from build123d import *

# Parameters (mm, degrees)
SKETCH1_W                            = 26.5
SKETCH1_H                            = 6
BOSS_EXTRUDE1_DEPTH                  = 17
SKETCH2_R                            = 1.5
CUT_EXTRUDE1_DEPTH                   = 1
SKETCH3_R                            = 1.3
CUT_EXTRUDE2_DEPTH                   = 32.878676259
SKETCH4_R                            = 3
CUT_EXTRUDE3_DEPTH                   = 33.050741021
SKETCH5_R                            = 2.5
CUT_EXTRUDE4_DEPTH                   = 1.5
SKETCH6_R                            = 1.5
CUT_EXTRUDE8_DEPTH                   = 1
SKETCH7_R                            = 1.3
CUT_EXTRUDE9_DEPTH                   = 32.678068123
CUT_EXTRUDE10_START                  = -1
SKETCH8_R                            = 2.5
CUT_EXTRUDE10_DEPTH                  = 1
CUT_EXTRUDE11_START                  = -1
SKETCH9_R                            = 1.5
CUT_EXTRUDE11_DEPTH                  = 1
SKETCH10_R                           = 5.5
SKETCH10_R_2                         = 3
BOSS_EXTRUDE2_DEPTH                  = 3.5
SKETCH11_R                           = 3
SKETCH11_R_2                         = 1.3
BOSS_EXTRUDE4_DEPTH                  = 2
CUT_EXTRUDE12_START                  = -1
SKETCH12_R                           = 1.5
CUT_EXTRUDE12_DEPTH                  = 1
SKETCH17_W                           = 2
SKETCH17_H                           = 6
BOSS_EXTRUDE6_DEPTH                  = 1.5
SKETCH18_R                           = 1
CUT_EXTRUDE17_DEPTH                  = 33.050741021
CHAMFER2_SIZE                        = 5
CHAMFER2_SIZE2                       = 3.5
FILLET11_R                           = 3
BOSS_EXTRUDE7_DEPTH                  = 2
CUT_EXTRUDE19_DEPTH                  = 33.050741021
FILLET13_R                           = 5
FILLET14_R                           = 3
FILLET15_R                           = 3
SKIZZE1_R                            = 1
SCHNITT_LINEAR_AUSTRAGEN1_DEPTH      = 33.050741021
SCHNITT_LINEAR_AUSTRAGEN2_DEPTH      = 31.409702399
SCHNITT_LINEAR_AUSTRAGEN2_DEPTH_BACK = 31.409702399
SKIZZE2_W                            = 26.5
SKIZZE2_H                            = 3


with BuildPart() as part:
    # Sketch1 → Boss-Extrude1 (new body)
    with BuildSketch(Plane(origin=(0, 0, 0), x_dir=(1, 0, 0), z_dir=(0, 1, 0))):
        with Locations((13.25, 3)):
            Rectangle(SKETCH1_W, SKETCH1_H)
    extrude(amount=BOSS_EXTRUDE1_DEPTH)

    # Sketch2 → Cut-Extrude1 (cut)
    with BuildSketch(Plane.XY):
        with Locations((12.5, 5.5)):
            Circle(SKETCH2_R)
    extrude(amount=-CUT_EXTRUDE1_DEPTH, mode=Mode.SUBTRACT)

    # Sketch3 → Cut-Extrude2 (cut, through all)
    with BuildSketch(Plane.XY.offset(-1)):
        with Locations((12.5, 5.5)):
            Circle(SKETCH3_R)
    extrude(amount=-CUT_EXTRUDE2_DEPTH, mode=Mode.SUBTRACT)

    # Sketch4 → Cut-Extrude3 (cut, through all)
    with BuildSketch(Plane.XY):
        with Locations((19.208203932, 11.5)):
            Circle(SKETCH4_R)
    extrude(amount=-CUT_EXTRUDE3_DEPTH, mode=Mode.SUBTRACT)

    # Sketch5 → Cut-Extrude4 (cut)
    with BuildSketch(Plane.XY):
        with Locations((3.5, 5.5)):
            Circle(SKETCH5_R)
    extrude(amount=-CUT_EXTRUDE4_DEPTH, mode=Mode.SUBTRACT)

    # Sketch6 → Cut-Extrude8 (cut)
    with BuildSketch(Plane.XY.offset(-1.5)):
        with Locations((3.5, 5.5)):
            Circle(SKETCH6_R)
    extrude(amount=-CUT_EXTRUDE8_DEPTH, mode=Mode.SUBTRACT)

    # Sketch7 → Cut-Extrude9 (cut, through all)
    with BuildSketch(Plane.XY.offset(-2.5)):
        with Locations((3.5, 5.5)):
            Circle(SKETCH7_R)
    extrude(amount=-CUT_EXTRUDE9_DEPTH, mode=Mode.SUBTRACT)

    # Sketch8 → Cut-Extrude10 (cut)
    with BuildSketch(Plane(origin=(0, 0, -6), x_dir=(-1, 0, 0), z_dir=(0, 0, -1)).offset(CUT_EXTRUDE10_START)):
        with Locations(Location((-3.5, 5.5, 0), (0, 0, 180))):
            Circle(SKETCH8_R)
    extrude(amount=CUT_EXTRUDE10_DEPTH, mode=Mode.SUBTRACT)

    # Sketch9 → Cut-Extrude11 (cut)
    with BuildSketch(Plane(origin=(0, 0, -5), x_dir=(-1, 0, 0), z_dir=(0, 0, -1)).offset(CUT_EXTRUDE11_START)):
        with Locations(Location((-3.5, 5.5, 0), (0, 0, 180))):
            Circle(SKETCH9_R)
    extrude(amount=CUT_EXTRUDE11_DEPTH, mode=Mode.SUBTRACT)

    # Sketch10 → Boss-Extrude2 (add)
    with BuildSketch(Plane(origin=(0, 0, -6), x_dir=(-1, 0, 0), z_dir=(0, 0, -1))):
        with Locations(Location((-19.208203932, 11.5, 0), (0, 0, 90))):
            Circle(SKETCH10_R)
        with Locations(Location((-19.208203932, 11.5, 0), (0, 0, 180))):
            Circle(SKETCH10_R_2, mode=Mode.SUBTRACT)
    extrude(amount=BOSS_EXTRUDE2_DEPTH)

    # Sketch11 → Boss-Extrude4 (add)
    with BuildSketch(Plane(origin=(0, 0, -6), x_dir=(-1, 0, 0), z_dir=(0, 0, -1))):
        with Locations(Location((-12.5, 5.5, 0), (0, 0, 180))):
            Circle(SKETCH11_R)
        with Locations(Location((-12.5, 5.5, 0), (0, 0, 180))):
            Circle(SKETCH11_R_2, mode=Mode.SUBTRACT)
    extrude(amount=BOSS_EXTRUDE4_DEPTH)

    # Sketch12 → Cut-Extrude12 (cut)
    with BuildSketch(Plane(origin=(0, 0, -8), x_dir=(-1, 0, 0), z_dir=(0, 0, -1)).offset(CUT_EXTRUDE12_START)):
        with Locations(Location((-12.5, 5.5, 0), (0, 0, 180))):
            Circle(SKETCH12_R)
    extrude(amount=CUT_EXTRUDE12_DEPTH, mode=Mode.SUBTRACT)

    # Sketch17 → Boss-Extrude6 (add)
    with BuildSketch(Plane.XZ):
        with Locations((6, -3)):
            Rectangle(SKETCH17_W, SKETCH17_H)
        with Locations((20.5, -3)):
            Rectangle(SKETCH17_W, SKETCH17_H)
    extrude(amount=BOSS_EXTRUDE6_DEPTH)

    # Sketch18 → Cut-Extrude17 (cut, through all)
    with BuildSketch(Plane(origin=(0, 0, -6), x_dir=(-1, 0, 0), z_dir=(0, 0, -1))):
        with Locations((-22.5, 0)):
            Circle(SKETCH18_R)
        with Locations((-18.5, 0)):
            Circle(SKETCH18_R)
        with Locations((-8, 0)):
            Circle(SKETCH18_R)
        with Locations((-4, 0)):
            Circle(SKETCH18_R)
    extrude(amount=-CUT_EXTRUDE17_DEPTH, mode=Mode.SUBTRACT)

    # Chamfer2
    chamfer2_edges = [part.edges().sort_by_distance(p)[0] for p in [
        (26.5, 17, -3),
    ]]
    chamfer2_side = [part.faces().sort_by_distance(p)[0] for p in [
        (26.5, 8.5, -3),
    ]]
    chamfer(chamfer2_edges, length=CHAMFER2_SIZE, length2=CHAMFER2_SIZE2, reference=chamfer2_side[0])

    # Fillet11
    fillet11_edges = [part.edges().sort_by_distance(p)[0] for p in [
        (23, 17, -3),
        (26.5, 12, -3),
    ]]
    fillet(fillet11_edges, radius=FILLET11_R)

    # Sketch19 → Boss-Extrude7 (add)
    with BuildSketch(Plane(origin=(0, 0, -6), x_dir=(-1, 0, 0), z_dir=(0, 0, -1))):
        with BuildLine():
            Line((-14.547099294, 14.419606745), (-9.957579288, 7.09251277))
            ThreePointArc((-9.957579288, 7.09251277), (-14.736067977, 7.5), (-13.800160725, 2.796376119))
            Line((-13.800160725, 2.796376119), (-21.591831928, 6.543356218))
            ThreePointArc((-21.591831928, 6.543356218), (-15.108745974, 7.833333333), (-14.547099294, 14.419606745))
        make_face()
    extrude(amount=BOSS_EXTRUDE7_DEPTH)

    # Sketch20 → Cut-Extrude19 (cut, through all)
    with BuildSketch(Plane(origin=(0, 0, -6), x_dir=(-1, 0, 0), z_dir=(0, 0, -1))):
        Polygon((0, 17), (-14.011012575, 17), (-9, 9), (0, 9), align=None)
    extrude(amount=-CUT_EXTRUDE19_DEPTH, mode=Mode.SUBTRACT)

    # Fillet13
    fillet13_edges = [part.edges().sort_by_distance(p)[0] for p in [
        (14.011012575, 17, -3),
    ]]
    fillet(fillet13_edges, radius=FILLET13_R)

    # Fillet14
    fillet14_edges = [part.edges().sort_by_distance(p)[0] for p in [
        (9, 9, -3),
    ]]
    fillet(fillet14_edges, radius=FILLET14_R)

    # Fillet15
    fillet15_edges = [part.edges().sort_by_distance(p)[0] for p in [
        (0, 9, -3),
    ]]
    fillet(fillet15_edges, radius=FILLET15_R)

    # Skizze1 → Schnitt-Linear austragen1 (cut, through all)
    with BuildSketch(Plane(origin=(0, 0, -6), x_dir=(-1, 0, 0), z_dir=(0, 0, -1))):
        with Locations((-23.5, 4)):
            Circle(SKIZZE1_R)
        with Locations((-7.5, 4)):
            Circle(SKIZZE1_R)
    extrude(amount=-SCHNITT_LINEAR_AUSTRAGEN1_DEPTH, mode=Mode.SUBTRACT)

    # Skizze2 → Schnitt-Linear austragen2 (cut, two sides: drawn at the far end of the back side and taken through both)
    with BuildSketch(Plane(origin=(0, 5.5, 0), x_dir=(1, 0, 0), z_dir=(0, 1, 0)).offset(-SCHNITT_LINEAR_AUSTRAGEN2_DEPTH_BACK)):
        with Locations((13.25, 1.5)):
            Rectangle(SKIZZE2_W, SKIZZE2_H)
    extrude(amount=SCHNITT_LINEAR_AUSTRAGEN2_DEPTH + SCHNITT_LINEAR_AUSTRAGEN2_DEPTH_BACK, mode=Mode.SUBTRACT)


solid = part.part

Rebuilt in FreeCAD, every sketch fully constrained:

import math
import FreeCAD as App
import Part
import Sketcher

V = App.Vector
Q = App.Units.Quantity


def edges_at(feature, points):
    """Names of the edges that pass closest to the given points."""
    edges = feature.Shape.Edges
    near = lambda p: min(range(len(edges)), key=lambda i: edges[i].distToShape(Part.Vertex(*p))[0])
    return sorted({f"Edge{near(p) + 1}" for p in points})

doc = App.newDocument("Part")
body = doc.addObject("PartDesign::Body", "Body")

# Sketch on XZ plane
sketch1 = body.newObject("Sketcher::SketchObject", "Sketch")
sketch1.AttachmentSupport = (doc.getObject("XZ_Plane"), [""])
sketch1.MapMode = "FlatFace"
sketch1.addGeometry([
    Part.LineSegment(V(0, -6, 0), V(0, 0, 0)),
    Part.LineSegment(V(0, 0, 0), V(26, 0, 0)),
    Part.LineSegment(V(26, 0, 0), V(26, -6, 0)),
    Part.LineSegment(V(26, -6, 0), V(0, -6, 0)),
], False)
sketch1.addConstraint([
    Sketcher.Constraint("Coincident", 0, 2, 1, 1),
    Sketcher.Constraint("Coincident", 1, 2, 2, 1),
    Sketcher.Constraint("Coincident", 2, 2, 3, 1),
    Sketcher.Constraint("Coincident", 3, 2, 0, 1),
    Sketcher.Constraint("Vertical", 0),
    Sketcher.Constraint("Horizontal", 1),
    Sketcher.Constraint("Vertical", 2),
    Sketcher.Constraint("Horizontal", 3),
    Sketcher.Constraint("Coincident", 0, 2, -1, 1),
    Sketcher.Constraint("DistanceY", 0, 1, 0, 2, Q("6 mm")),
    Sketcher.Constraint("DistanceX", 1, 1, 1, 2, Q("26.5 mm")),
])
pad1 = body.newObject("PartDesign::Pad", "Pad")
pad1.Profile = sketch1
pad1.Length = 17
pad1.Reversed = True

# Sketch on XY plane
sketch2 = body.newObject("Sketcher::SketchObject", "Sketch001")
sketch2.AttachmentSupport = (doc.getObject("XY_Plane"), [""])
sketch2.MapMode = "FlatFace"
sketch2.addGeometry(Part.Circle(V(12.5, 5.5, 0), V(0, 0, 1), 1.5), False)
sketch2.addConstraint([
    Sketcher.Constraint("Diameter", 0, Q("3 mm")),
    Sketcher.Constraint("DistanceX", -1, 1, 0, 3, Q("12.5 mm")),
    Sketcher.Constraint("DistanceY", -1, 1, 0, 3, Q("5.5 mm")),
])
pocket1 = body.newObject("PartDesign::Pocket", "Pocket")
pocket1.Profile = sketch2
pocket1.Length = 1

# Sketch on XY plane
sketch3 = body.newObject("Sketcher::SketchObject", "Sketch002")
sketch3.AttachmentSupport = (doc.getObject("XY_Plane"), [""])
sketch3.MapMode = "FlatFace"
sketch3.AttachmentOffset = App.Placement(V(0, 0, -1), App.Rotation())
sketch3.addGeometry(Part.Circle(V(12.5, 5.5, 0), V(0, 0, 1), 1.3), False)
sketch3.addConstraint([
    Sketcher.Constraint("Diameter", 0, Q("2.6 mm")),
    Sketcher.Constraint("DistanceX", -1, 1, 0, 3, Q("12.5 mm")),
    Sketcher.Constraint("DistanceY", -1, 1, 0, 3, Q("5.5 mm")),
])
pocket2 = body.newObject("PartDesign::Pocket", "Pocket001")
pocket2.Profile = sketch3
pocket2.Type = "ThroughAll"

# Sketch on XY plane
sketch4 = body.newObject("Sketcher::SketchObject", "Sketch003")
sketch4.AttachmentSupport = (doc.getObject("XY_Plane"), [""])
sketch4.MapMode = "FlatFace"
sketch4.addGeometry(Part.Circle(V(19.2, 11.5, 0), V(0, 0, 1), 3), False)
sketch4.addConstraint([
    Sketcher.Constraint("Diameter", 0, Q("6 mm")),
    Sketcher.Constraint("DistanceY", -1, 1, 0, 3, Q("11.5 mm")),
    Sketcher.Constraint("DistanceX", -1, 1, 0, 3, Q("19.208204 mm")),
])
pocket3 = body.newObject("PartDesign::Pocket", "Pocket002")
pocket3.Profile = sketch4
pocket3.Type = "ThroughAll"

# Sketch on XY plane
sketch5 = body.newObject("Sketcher::SketchObject", "Sketch004")
sketch5.AttachmentSupport = (doc.getObject("XY_Plane"), [""])
sketch5.MapMode = "FlatFace"
sketch5.addGeometry(Part.Circle(V(3.5, 5.5, 0), V(0, 0, 1), 2.5), False)
sketch5.addConstraint([
    Sketcher.Constraint("Diameter", 0, Q("5 mm")),
    Sketcher.Constraint("DistanceX", -1, 1, 0, 3, Q("3.5 mm")),
    Sketcher.Constraint("DistanceY", -1, 1, 0, 3, Q("5.5 mm")),
])
pocket4 = body.newObject("PartDesign::Pocket", "Pocket003")
pocket4.Profile = sketch5
pocket4.Length = 1.5

# Sketch on XY plane
sketch6 = body.newObject("Sketcher::SketchObject", "Sketch005")
sketch6.AttachmentSupport = (doc.getObject("XY_Plane"), [""])
sketch6.MapMode = "FlatFace"
sketch6.AttachmentOffset = App.Placement(V(0, 0, -1.5), App.Rotation())
sketch6.addGeometry(Part.Circle(V(3.5, 5.5, 0), V(0, 0, 1), 1.5), False)
sketch6.addConstraint([
    Sketcher.Constraint("Diameter", 0, Q("3 mm")),
    Sketcher.Constraint("DistanceX", -1, 1, 0, 3, Q("3.5 mm")),
    Sketcher.Constraint("DistanceY", -1, 1, 0, 3, Q("5.5 mm")),
])
pocket5 = body.newObject("PartDesign::Pocket", "Pocket004")
pocket5.Profile = sketch6
pocket5.Length = 1

# Sketch on XY plane
sketch7 = body.newObject("Sketcher::SketchObject", "Sketch006")
sketch7.AttachmentSupport = (doc.getObject("XY_Plane"), [""])
sketch7.MapMode = "FlatFace"
sketch7.AttachmentOffset = App.Placement(V(0, 0, -2.5), App.Rotation())
sketch7.addGeometry(Part.Circle(V(3.5, 5.5, 0), V(0, 0, 1), 1.3), False)
sketch7.addConstraint([
    Sketcher.Constraint("Diameter", 0, Q("2.6 mm")),
    Sketcher.Constraint("DistanceX", -1, 1, 0, 3, Q("3.5 mm")),
    Sketcher.Constraint("DistanceY", -1, 1, 0, 3, Q("5.5 mm")),
])
pocket6 = body.newObject("PartDesign::Pocket", "Pocket005")
pocket6.Profile = sketch7
pocket6.Type = "ThroughAll"

# Sketch on XY plane
sketch8 = body.newObject("Sketcher::SketchObject", "Sketch007")
sketch8.AttachmentSupport = (doc.getObject("XY_Plane"), [""])
sketch8.MapMode = "FlatFace"
sketch8.AttachmentOffset = App.Placement(V(0, 0, -5), App.Rotation())
sketch8.addGeometry(Part.Circle(V(3.5, 5.5, 0), V(0, 0, 1), 2.5), False)
sketch8.addConstraint([
    Sketcher.Constraint("Diameter", 0, Q("5 mm")),
    Sketcher.Constraint("DistanceX", -1, 1, 0, 3, Q("3.5 mm")),
    Sketcher.Constraint("DistanceY", -1, 1, 0, 3, Q("5.5 mm")),
])
pocket7 = body.newObject("PartDesign::Pocket", "Pocket006")
pocket7.Profile = sketch8
pocket7.Length = 1

# Sketch on XY plane
sketch9 = body.newObject("Sketcher::SketchObject", "Sketch008")
sketch9.AttachmentSupport = (doc.getObject("XY_Plane"), [""])
sketch9.MapMode = "FlatFace"
sketch9.AttachmentOffset = App.Placement(V(0, 0, -4), App.Rotation())
sketch9.addGeometry(Part.Circle(V(3.5, 5.5, 0), V(0, 0, 1), 1.5), False)
sketch9.addConstraint([
    Sketcher.Constraint("Diameter", 0, Q("3 mm")),
    Sketcher.Constraint("DistanceX", -1, 1, 0, 3, Q("3.5 mm")),
    Sketcher.Constraint("DistanceY", -1, 1, 0, 3, Q("5.5 mm")),
])
pocket8 = body.newObject("PartDesign::Pocket", "Pocket007")
pocket8.Profile = sketch9
pocket8.Length = 1

# Sketch on XY plane
sketch10 = body.newObject("Sketcher::SketchObject", "Sketch009")
sketch10.AttachmentSupport = (doc.getObject("XY_Plane"), [""])
sketch10.MapMode = "FlatFace"
sketch10.AttachmentOffset = App.Placement(V(0, 0, -6), App.Rotation())
sketch10.addGeometry([
    Part.Circle(V(19.2, 11.5, 0), V(0, 0, 1), 5.5),
    Part.Circle(V(19.2, 11.5, 0), V(0, 0, 1), 3),
], False)
sketch10.addConstraint([
    Sketcher.Constraint("Coincident", 1, 3, 0, 3),
    Sketcher.Constraint("Diameter", 0, Q("11 mm")),
    Sketcher.Constraint("Diameter", 1, Q("6 mm")),
    Sketcher.Constraint("DistanceY", -1, 1, 0, 3, Q("11.5 mm")),
    Sketcher.Constraint("DistanceX", -1, 1, 0, 3, Q("19.208204 mm")),
])
pad2 = body.newObject("PartDesign::Pad", "Pad001")
pad2.Profile = sketch10
pad2.Length = 3.5
pad2.Reversed = True

# Sketch on XY plane
sketch11 = body.newObject("Sketcher::SketchObject", "Sketch010")
sketch11.AttachmentSupport = (doc.getObject("XY_Plane"), [""])
sketch11.MapMode = "FlatFace"
sketch11.AttachmentOffset = App.Placement(V(0, 0, -6), App.Rotation())
sketch11.addGeometry([
    Part.Circle(V(12.5, 5.5, 0), V(0, 0, 1), 3),
    Part.Circle(V(12.5, 5.5, 0), V(0, 0, 1), 1.3),
], False)
sketch11.addConstraint([
    Sketcher.Constraint("Coincident", 1, 3, 0, 3),
    Sketcher.Constraint("Diameter", 0, Q("6 mm")),
    Sketcher.Constraint("Diameter", 1, Q("2.6 mm")),
    Sketcher.Constraint("DistanceX", -1, 1, 0, 3, Q("12.5 mm")),
    Sketcher.Constraint("DistanceY", -1, 1, 0, 3, Q("5.5 mm")),
])
pad3 = body.newObject("PartDesign::Pad", "Pad002")
pad3.Profile = sketch11
pad3.Length = 2
pad3.Reversed = True

# Sketch on XY plane
sketch12 = body.newObject("Sketcher::SketchObject", "Sketch011")
sketch12.AttachmentSupport = (doc.getObject("XY_Plane"), [""])
sketch12.MapMode = "FlatFace"
sketch12.AttachmentOffset = App.Placement(V(0, 0, -7), App.Rotation())
sketch12.addGeometry(Part.Circle(V(12.5, 5.5, 0), V(0, 0, 1), 1.5), False)
sketch12.addConstraint([
    Sketcher.Constraint("Diameter", 0, Q("3 mm")),
    Sketcher.Constraint("DistanceX", -1, 1, 0, 3, Q("12.5 mm")),
    Sketcher.Constraint("DistanceY", -1, 1, 0, 3, Q("5.5 mm")),
])
pocket9 = body.newObject("PartDesign::Pocket", "Pocket008")
pocket9.Profile = sketch12
pocket9.Length = 1

# Sketch on XZ plane
sketch13 = body.newObject("Sketcher::SketchObject", "Sketch012")
sketch13.AttachmentSupport = (doc.getObject("XZ_Plane"), [""])
sketch13.MapMode = "FlatFace"
sketch13.addGeometry([
    Part.LineSegment(V(5, 0, 0), V(5, -6, 0)),  # 0
    Part.LineSegment(V(5, -6, 0), V(7, -6, 0)),  # 1
    Part.LineSegment(V(7, -6, 0), V(7, 0, 0)),  # 2
    Part.LineSegment(V(7, 0, 0), V(5, 0, 0)),  # 3
    Part.LineSegment(V(19.5, 0, 0), V(19.5, -6, 0)),  # 4
    Part.LineSegment(V(19.5, -6, 0), V(21.5, -6, 0)),  # 5
    Part.LineSegment(V(21.5, -6, 0), V(21.5, 0, 0)),  # 6
    Part.LineSegment(V(21.5, 0, 0), V(19.5, 0, 0)),  # 7
], False)
sketch13.addConstraint([
    Sketcher.Constraint("Coincident", 0, 2, 1, 1),
    Sketcher.Constraint("Coincident", 1, 2, 2, 1),
    Sketcher.Constraint("Coincident", 2, 2, 3, 1),
    Sketcher.Constraint("Coincident", 3, 2, 0, 1),
    Sketcher.Constraint("Coincident", 4, 2, 5, 1),
    Sketcher.Constraint("Coincident", 5, 2, 6, 1),
    Sketcher.Constraint("Coincident", 6, 2, 7, 1),
    Sketcher.Constraint("Coincident", 7, 2, 4, 1),
    Sketcher.Constraint("Vertical", 0),
    Sketcher.Constraint("Horizontal", 1),
    Sketcher.Constraint("Vertical", 2),
    Sketcher.Constraint("Horizontal", 3),
    Sketcher.Constraint("Vertical", 4),
    Sketcher.Constraint("Horizontal", 5),
    Sketcher.Constraint("Vertical", 6),
    Sketcher.Constraint("Horizontal", 7),
    Sketcher.Constraint("PointOnObject", 2, 2, -1),
    Sketcher.Constraint("PointOnObject", 6, 2, -1),
    Sketcher.Constraint("Horizontal", 1, 2, 4, 2),
    Sketcher.Constraint("Equal", 3, 5),
    Sketcher.Constraint("DistanceX", 1, 1, 1, 2, Q("2 mm")),
    Sketcher.Constraint("DistanceY", 0, 2, 0, 1, Q("6 mm")),
    Sketcher.Constraint("DistanceX", -1, 1, 0, 2, Q("5 mm")),
    Sketcher.Constraint("DistanceX", -1, 1, 4, 2, Q("19.5 mm")),
])
pad4 = body.newObject("PartDesign::Pad", "Pad003")
pad4.Profile = sketch13
pad4.Length = 1.5

# Sketch on XY plane
sketch14 = body.newObject("Sketcher::SketchObject", "Sketch013")
sketch14.AttachmentSupport = (doc.getObject("XY_Plane"), [""])
sketch14.MapMode = "FlatFace"
sketch14.AttachmentOffset = App.Placement(V(0, 0, -6), App.Rotation())
sketch14.addGeometry([
    Part.Circle(V(22.5, 0, 0), V(0, 0, 1), 1),
    Part.Circle(V(18.5, 0, 0), V(0, 0, 1), 1),
    Part.Circle(V(8, 0, 0), V(0, 0, 1), 1),
    Part.Circle(V(4, 0, 0), V(0, 0, 1), 1),
], False)
sketch14.addConstraint([
    Sketcher.Constraint("Equal", 0, 1),
    Sketcher.Constraint("Equal", 1, 2),
    Sketcher.Constraint("Equal", 2, 3),
    Sketcher.Constraint("PointOnObject", 0, 3, -1),
    Sketcher.Constraint("PointOnObject", 1, 3, -1),
    Sketcher.Constraint("PointOnObject", 2, 3, -1),
    Sketcher.Constraint("PointOnObject", 3, 3, -1),
    Sketcher.Constraint("Diameter", 0, Q("2 mm")),
    Sketcher.Constraint("DistanceX", -1, 1, 2, 3, Q("8 mm")),
    Sketcher.Constraint("DistanceX", -1, 1, 3, 3, Q("4 mm")),
    Sketcher.Constraint("DistanceX", 1, 3, 0, 3, Q("4 mm")),
    Sketcher.Constraint("DistanceX", -1, 1, 0, 3, Q("22.5 mm")),
])
pocket10 = body.newObject("PartDesign::Pocket", "Pocket009")
pocket10.Profile = sketch14
pocket10.Type = "ThroughAll"
pocket10.Reversed = True
doc.recompute()

chamfer = body.newObject("PartDesign::Chamfer", "Chamfer")
chamfer.Base = (pocket10, edges_at(pocket10, [(26.5, 17, -3)]))
chamfer.ChamferType = "Two distances"
chamfer.Size = 5
chamfer.Size2 = 3.5
doc.recompute()

fillet = body.newObject("PartDesign::Fillet", "Fillet")
fillet.Base = (chamfer, edges_at(chamfer, [(23, 17, -3), (26.5, 12, -3)]))
fillet.Radius = 3

# Sketch on XY plane
sketch15 = body.newObject("Sketcher::SketchObject", "Sketch014")
sketch15.AttachmentSupport = (doc.getObject("XY_Plane"), [""])
sketch15.MapMode = "FlatFace"
sketch15.AttachmentOffset = App.Placement(V(0, 0, -6), App.Rotation())
sketch15.addGeometry([
    Part.LineSegment(V(10, 7.1, 0), V(14.5, 14.4, 0)),
    Part.ArcOfCircle(Part.Circle(V(19.2, 11.5, 0), V(0, 0, 1), 5.5), math.radians(148), math.radians(296)),
    Part.LineSegment(V(21.6, 6.5, 0), V(13.8, 2.8, 0)),
    Part.ArcOfCircle(Part.Circle(V(12.5, 5.5, 0), V(0, 0, 1), 3), math.radians(-64), math.radians(148)),
], False)
sketch15.addConstraint([
    Sketcher.Constraint("Tangent", 0, 2, 1, 1),
    Sketcher.Constraint("Tangent", 1, 2, 2, 1),
    Sketcher.Constraint("Tangent", 2, 2, 3, 1),
    Sketcher.Constraint("Tangent", 3, 2, 0, 1),
    Sketcher.Constraint("Radius", 3, Q("3 mm")),
    Sketcher.Constraint("Radius", 1, Q("5.5 mm")),
    Sketcher.Constraint("DistanceY", 3, 3, 1, 3, Q("6 mm")),
    Sketcher.Constraint("DistanceY", -1, 1, 1, 3, Q("11.5 mm")),
    Sketcher.Constraint("DistanceX", -1, 1, 3, 3, Q("12.5 mm")),
    Sketcher.Constraint("DistanceX", -1, 1, 0, 2, Q("14.547099 mm")),
])
pad5 = body.newObject("PartDesign::Pad", "Pad004")
pad5.Profile = sketch15
pad5.Length = 2
pad5.Reversed = True

# Sketch on XY plane
sketch16 = body.newObject("Sketcher::SketchObject", "Sketch015")
sketch16.AttachmentSupport = (doc.getObject("XY_Plane"), [""])
sketch16.MapMode = "FlatFace"
sketch16.AttachmentOffset = App.Placement(V(0, 0, -6), App.Rotation())
sketch16.addGeometry([
    Part.LineSegment(V(0, 17, 0), V(14, 17, 0)),
    Part.LineSegment(V(14, 17, 0), V(9, 9, 0)),
    Part.LineSegment(V(9, 9, 0), V(0, 9, 0)),
    Part.LineSegment(V(0, 9, 0), V(0, 17, 0)),
], False)
sketch16.addConstraint([
    Sketcher.Constraint("Coincident", 0, 2, 1, 1),
    Sketcher.Constraint("Coincident", 1, 2, 2, 1),
    Sketcher.Constraint("Coincident", 2, 2, 3, 1),
    Sketcher.Constraint("Coincident", 3, 2, 0, 1),
    Sketcher.Constraint("Horizontal", 0),
    Sketcher.Constraint("Horizontal", 2),
    Sketcher.Constraint("Vertical", 3),
    Sketcher.Constraint("PointOnObject", 2, 2, -2),
    Sketcher.Constraint("DistanceX", 2, 2, 2, 1, Q("9 mm")),
    Sketcher.Constraint("DistanceY", 3, 1, 3, 2, Q("8 mm")),
    Sketcher.Constraint("DistanceY", -1, 1, 0, 2, Q("17 mm")),
    Sketcher.Constraint("DistanceX", 0, 1, 0, 2, Q("14.011013 mm")),
])
pocket11 = body.newObject("PartDesign::Pocket", "Pocket010")
pocket11.Profile = sketch16
pocket11.Type = "ThroughAll"
pocket11.Reversed = True
doc.recompute()

fillet2 = body.newObject("PartDesign::Fillet", "Fillet001")
fillet2.Base = (pocket11, edges_at(pocket11, [(14.011, 17, -3)]))
fillet2.Radius = 5
doc.recompute()

fillet3 = body.newObject("PartDesign::Fillet", "Fillet002")
fillet3.Base = (fillet2, edges_at(fillet2, [(9, 9, -3)]))
fillet3.Radius = 3
doc.recompute()

fillet4 = body.newObject("PartDesign::Fillet", "Fillet003")
fillet4.Base = (fillet3, edges_at(fillet3, [(0, 9, -3)]))
fillet4.Radius = 3

# Sketch on XY plane
sketch17 = body.newObject("Sketcher::SketchObject", "Sketch016")
sketch17.AttachmentSupport = (doc.getObject("XY_Plane"), [""])
sketch17.MapMode = "FlatFace"
sketch17.AttachmentOffset = App.Placement(V(0, 0, -6), App.Rotation())
sketch17.addGeometry([
    Part.Circle(V(23.5, 4, 0), V(0, 0, 1), 1),
    Part.Circle(V(7.5, 4, 0), V(0, 0, 1), 1),
], False)
sketch17.addConstraint([
    Sketcher.Constraint("Equal", 0, 1),
    Sketcher.Constraint("Horizontal", 0, 3, 1, 3),
    Sketcher.Constraint("Diameter", 0, Q("2 mm")),
    Sketcher.Constraint("DistanceY", -1, 1, 0, 3, Q("4 mm")),
    Sketcher.Constraint("DistanceX", 1, 3, 0, 3, Q("16 mm")),
    Sketcher.Constraint("DistanceX", -1, 1, 0, 3, Q("23.5 mm")),
])
pocket12 = body.newObject("PartDesign::Pocket", "Pocket011")
pocket12.Profile = sketch17
pocket12.Type = "ThroughAll"
pocket12.Reversed = True

# Sketch on XZ plane
sketch18 = body.newObject("Sketcher::SketchObject", "Sketch017")
sketch18.AttachmentSupport = (doc.getObject("XZ_Plane"), [""])
sketch18.MapMode = "FlatFace"
sketch18.AttachmentOffset = App.Placement(V(0, 0, -5.5), App.Rotation())
sketch18.addGeometry([
    Part.LineSegment(V(0, -3, 0), V(0, 0, 0)),
    Part.LineSegment(V(0, 0, 0), V(26.5, 0, 0)),
    Part.LineSegment(V(26.5, 0, 0), V(26.5, -3, 0)),
    Part.LineSegment(V(26.5, -3, 0), V(0, -3, 0)),
], False)
sketch18.addConstraint([
    Sketcher.Constraint("Coincident", 0, 2, 1, 1),
    Sketcher.Constraint("Coincident", 1, 2, 2, 1),
    Sketcher.Constraint("Coincident", 2, 2, 3, 1),
    Sketcher.Constraint("Coincident", 3, 2, 0, 1),
    Sketcher.Constraint("Vertical", 0),
    Sketcher.Constraint("Horizontal", 1),
    Sketcher.Constraint("Vertical", 2),
    Sketcher.Constraint("Horizontal", 3),
    Sketcher.Constraint("Coincident", 0, 2, -1, 1),
    Sketcher.Constraint("DistanceY", 0, 1, 0, 2, Q("3 mm")),
    Sketcher.Constraint("DistanceX", 1, 1, 1, 2, Q("26.5 mm")),
])
pocket13 = body.newObject("PartDesign::Pocket", "Pocket012")
pocket13.Profile = sketch18
pocket13.Type = "ThroughAll"
pocket13.Midplane = True

doc.recompute()
